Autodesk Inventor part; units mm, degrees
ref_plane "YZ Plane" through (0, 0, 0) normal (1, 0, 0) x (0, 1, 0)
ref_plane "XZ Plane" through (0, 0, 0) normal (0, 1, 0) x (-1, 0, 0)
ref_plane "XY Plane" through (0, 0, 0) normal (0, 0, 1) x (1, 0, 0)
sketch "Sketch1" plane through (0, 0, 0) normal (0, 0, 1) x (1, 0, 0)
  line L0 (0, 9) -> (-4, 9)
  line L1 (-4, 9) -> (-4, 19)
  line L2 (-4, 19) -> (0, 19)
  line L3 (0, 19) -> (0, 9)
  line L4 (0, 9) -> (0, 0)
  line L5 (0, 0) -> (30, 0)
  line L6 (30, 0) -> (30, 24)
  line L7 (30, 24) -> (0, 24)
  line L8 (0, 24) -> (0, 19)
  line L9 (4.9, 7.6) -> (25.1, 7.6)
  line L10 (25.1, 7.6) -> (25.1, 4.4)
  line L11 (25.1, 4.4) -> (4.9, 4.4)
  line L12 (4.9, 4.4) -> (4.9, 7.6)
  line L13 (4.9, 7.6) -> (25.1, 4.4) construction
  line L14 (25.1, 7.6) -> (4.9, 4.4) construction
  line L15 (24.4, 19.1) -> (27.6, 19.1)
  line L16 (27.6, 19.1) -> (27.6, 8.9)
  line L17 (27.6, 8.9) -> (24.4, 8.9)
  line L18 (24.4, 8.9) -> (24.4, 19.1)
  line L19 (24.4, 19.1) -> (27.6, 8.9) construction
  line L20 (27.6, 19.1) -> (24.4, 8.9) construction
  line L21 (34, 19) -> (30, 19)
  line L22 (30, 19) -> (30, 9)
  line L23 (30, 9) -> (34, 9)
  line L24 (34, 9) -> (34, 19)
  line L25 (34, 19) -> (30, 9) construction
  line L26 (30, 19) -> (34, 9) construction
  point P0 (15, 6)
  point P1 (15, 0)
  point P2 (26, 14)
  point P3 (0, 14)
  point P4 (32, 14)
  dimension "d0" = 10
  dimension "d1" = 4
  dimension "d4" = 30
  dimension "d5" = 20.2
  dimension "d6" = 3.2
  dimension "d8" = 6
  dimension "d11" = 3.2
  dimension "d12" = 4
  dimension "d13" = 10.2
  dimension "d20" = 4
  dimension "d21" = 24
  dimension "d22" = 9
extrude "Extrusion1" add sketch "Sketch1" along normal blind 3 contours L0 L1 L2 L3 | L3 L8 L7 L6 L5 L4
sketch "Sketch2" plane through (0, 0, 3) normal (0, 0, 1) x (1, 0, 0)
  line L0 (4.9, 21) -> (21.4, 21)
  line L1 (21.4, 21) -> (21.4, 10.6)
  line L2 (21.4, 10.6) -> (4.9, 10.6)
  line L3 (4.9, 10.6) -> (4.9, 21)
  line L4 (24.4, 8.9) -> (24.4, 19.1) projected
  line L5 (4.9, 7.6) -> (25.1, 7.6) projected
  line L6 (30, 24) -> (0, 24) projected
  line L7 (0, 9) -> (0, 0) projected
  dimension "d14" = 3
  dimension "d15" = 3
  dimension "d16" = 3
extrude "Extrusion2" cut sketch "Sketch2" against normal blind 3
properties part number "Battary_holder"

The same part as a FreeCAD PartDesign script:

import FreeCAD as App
import Part
import Sketcher
from FreeCAD import Vector
Q = App.Units.Quantity


def add_polygon(sketch, points):
    """Adds a closed chain of lines whose ends are joined by coincident constraints."""
    first, n = sketch.GeometryCount, len(points)
    for a, b in zip(points, points[1:] + points[:1]):
        sketch.addGeometry(Part.LineSegment(App.Vector(*a, 0), App.Vector(*b, 0)), False)
    for i in range(n):
        sketch.addConstraint(Sketcher.Constraint("Coincident", first + i, 2, first + (i + 1) % n, 1))

doc = App.newDocument("Part")
body = doc.addObject("PartDesign::Body", "Body")

# Sketch on XY plane
sketch1 = body.newObject("Sketcher::SketchObject", "Sketch")
sketch1.AttachmentSupport = (doc.getObject("XY_Plane"), [""])
sketch1.MapMode = "FlatFace"
add_polygon(sketch1, [(-4, 9), (0, 9), (0, 0), (30, 0), (30, 24), (0, 24), (0, 19), (-4, 19)])  # lines 0-7
add_polygon(sketch1, [(24.4, 19.1), (27.6, 19.1), (27.6, 8.9), (24.4, 8.9)])  # lines 8-11
add_polygon(sketch1, [(4.9, 4.4), (4.9, 7.6), (25.1, 7.6), (25.1, 4.4)])  # lines 12-15
sketch1.addConstraint(Sketcher.Constraint("Horizontal", 0))
sketch1.addConstraint(Sketcher.Constraint("Vertical", 1))
sketch1.addConstraint(Sketcher.Constraint("Horizontal", 2))
sketch1.addConstraint(Sketcher.Constraint("Vertical", 3))
sketch1.addConstraint(Sketcher.Constraint("Horizontal", 4))
sketch1.addConstraint(Sketcher.Constraint("Vertical", 5))
sketch1.addConstraint(Sketcher.Constraint("Horizontal", 6))
sketch1.addConstraint(Sketcher.Constraint("Vertical", 7))
sketch1.addConstraint(Sketcher.Constraint("Horizontal", 8))
sketch1.addConstraint(Sketcher.Constraint("Vertical", 9))
sketch1.addConstraint(Sketcher.Constraint("Horizontal", 10))
sketch1.addConstraint(Sketcher.Constraint("Vertical", 11))
sketch1.addConstraint(Sketcher.Constraint("Vertical", 12))
sketch1.addConstraint(Sketcher.Constraint("Horizontal", 13))
sketch1.addConstraint(Sketcher.Constraint("Vertical", 14))
sketch1.addConstraint(Sketcher.Constraint("Horizontal", 15))
sketch1.addConstraint(Sketcher.Constraint("Coincident", 1, 2, -1, 1))
sketch1.addConstraint(Sketcher.Constraint("PointOnObject", 4, 2, -2))
sketch1.addConstraint(Sketcher.Constraint("Equal", 10, 12))
sketch1.addConstraint(Sketcher.Constraint("DistanceX", 0, 1, 0, 2, Q("4 mm")))
sketch1.addConstraint(Sketcher.Constraint("DistanceX", 2, 1, 2, 2, Q("30 mm")))
sketch1.addConstraint(Sketcher.Constraint("DistanceY", 1, 2, 1, 1, Q("9 mm")))
sketch1.addConstraint(Sketcher.Constraint("DistanceY", 3, 1, 3, 2, Q("24 mm")))
sketch1.addConstraint(Sketcher.Constraint("DistanceY", 7, 2, 7, 1, Q("10 mm")))
sketch1.addConstraint(Sketcher.Constraint("DistanceX", 8, 1, 8, 2, Q("3.2 mm")))
sketch1.addConstraint(Sketcher.Constraint("DistanceX", 13, 1, 13, 2, Q("20.2 mm")))
sketch1.addConstraint(Sketcher.Constraint("DistanceY", 9, 2, 9, 1, Q("10.2 mm")))
sketch1.addConstraint(Sketcher.Constraint("DistanceX", -1, 1, 8, 2, Q("27.6 mm")))
sketch1.addConstraint(Sketcher.Constraint("DistanceY", -1, 1, 8, 2, Q("19.1 mm")))
sketch1.addConstraint(Sketcher.Constraint("DistanceX", -1, 1, 12, 2, Q("4.9 mm")))
sketch1.addConstraint(Sketcher.Constraint("DistanceY", -1, 1, 12, 2, Q("7.6 mm")))
pad1 = body.newObject("PartDesign::Pad", "Pad")
pad1.Profile = sketch1
pad1.Length = 3

# Sketch on XY plane
sketch2 = body.newObject("Sketcher::SketchObject", "Sketch001")
sketch2.AttachmentSupport = (doc.getObject("XY_Plane"), [""])
sketch2.MapMode = "FlatFace"
sketch2.AttachmentOffset = App.Placement(Vector(0, 0, 3), App.Rotation())
add_polygon(sketch2, [(21, 21), (5, 21), (5, 11), (21, 11)])  # lines 0-3
sketch2.addConstraint(Sketcher.Constraint("Horizontal", 0))
sketch2.addConstraint(Sketcher.Constraint("Vertical", 1))
sketch2.addConstraint(Sketcher.Constraint("Horizontal", 2))
sketch2.addConstraint(Sketcher.Constraint("Vertical", 3))
sketch2.addConstraint(Sketcher.Constraint("DistanceX", 0, 2, 0, 1, Q("16.5 mm")))
sketch2.addConstraint(Sketcher.Constraint("DistanceY", 1, 2, 1, 1, Q("10.4 mm")))
sketch2.addConstraint(Sketcher.Constraint("DistanceY", -1, 1, 0, 2, Q("21 mm")))
sketch2.addConstraint(Sketcher.Constraint("DistanceX", -1, 1, 0, 2, Q("4.9 mm")))
pocket1 = body.newObject("PartDesign::Pocket", "Pocket")
pocket1.Profile = sketch2
pocket1.Length = 3

doc.recompute()
